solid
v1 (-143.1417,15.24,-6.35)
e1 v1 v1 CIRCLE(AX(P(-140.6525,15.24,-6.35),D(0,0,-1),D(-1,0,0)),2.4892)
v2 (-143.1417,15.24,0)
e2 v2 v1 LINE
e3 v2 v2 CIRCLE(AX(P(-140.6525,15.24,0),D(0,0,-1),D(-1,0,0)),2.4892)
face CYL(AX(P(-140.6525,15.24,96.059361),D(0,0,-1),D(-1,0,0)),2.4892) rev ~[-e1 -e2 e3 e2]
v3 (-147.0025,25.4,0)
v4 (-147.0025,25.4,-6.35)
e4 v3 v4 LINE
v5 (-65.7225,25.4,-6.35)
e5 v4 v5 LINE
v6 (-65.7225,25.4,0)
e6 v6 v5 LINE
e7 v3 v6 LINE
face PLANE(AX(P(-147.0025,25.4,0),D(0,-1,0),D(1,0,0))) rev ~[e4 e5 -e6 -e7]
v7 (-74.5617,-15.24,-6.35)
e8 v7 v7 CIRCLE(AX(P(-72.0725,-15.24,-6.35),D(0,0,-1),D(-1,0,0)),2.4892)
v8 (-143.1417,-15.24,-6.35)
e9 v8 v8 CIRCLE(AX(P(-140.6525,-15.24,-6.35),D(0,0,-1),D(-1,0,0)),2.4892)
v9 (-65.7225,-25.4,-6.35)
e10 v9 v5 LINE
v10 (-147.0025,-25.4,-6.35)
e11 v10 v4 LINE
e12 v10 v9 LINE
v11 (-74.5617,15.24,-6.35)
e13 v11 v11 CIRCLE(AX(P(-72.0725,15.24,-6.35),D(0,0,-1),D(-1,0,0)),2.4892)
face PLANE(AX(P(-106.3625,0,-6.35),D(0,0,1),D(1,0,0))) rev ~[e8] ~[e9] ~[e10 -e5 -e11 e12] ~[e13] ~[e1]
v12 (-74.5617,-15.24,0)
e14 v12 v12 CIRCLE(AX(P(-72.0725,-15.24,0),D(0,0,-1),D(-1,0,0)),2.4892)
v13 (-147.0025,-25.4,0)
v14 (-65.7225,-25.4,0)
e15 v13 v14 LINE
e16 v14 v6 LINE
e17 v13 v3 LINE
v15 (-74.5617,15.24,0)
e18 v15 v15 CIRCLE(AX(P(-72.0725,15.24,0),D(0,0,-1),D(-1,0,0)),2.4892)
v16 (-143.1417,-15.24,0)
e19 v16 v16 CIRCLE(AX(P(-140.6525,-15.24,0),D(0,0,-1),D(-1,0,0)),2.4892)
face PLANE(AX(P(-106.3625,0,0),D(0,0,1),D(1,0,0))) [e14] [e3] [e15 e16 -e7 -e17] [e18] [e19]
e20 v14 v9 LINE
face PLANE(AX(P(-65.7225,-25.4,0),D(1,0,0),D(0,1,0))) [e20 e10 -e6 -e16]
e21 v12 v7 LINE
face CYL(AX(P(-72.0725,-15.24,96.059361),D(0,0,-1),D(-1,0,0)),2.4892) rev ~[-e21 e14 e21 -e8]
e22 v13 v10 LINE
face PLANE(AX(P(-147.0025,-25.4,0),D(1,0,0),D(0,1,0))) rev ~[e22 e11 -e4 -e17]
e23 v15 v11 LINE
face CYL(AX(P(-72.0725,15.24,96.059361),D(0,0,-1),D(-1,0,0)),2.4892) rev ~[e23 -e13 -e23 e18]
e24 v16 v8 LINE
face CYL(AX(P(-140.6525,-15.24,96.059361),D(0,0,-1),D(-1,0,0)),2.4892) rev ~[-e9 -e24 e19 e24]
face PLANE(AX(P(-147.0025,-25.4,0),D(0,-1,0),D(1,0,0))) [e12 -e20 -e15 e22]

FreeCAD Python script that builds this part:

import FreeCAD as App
import Part
import Sketcher
Q = App.Units.Quantity


def add_polygon(sketch, points):
    """Adds a closed chain of lines whose ends are joined by coincident constraints."""
    first, n = sketch.GeometryCount, len(points)
    for a, b in zip(points, points[1:] + points[:1]):
        sketch.addGeometry(Part.LineSegment(App.Vector(*a, 0), App.Vector(*b, 0)), False)
    for i in range(n):
        sketch.addConstraint(Sketcher.Constraint("Coincident", first + i, 2, first + (i + 1) % n, 1))

doc = App.newDocument("Part")
body = doc.addObject("PartDesign::Body", "Body")

sketch1 = doc.addObject("Sketcher::SketchObject", "Sketch")
body.addObject(sketch1)
sketch1.AttachmentSupport = (doc.XY_Plane, [""])
sketch1.MapMode = "FlatFace"
add_polygon(sketch1, [(-147, 25), (-147, -25), (-66, -25), (-66, 25)])
sketch1.addConstraint(Sketcher.Constraint("Vertical", 0))
sketch1.addConstraint(Sketcher.Constraint("Horizontal", 1))
sketch1.addConstraint(Sketcher.Constraint("Vertical", 2))
sketch1.addConstraint(Sketcher.Constraint("Horizontal", 3))
sketch1.addConstraint(Sketcher.Constraint("DistanceY", 0, 2, 0, 1, Q("2 in")))
sketch1.addConstraint(Sketcher.Constraint("DistanceX", 1, 1, 1, 2, Q("3.2 in")))
sketch1.addConstraint(Sketcher.Constraint("DistanceY", 0, 2, -1, 1, Q("1 in")))
sketch1.addConstraint(Sketcher.Constraint("DistanceX", 0, 2, -1, 1, Q("5.7875 in")))
pad1 = doc.addObject("PartDesign::Pad", "Pad")
body.addObject(pad1)
pad1.Profile = sketch1
pad1.Length = Q("0.25 in")
pad1.Reversed = True

sketch2 = doc.addObject("Sketcher::SketchObject", "Sketch001")
body.addObject(sketch2)
sketch2.AttachmentSupport = (doc.XY_Plane, [""])
sketch2.MapMode = "FlatFace"
sketch2.addGeometry(Part.Circle(App.Vector(-140.7, 15.2, 0), App.Vector(0, 0, 1), 2.5), False)
sketch2.addGeometry(Part.Circle(App.Vector(-140.7, -15.2, 0), App.Vector(0, 0, 1), 2.5), False)
sketch2.addGeometry(Part.Circle(App.Vector(-72.1, 15.2, 0), App.Vector(0, 0, 1), 2.5), False)
sketch2.addGeometry(Part.Circle(App.Vector(-72.1, -15.2, 0), App.Vector(0, 0, 1), 2.5), False)
sketch2.addConstraint(Sketcher.Constraint("Equal", 0, 1))
sketch2.addConstraint(Sketcher.Constraint("Equal", 1, 2))
sketch2.addConstraint(Sketcher.Constraint("Equal", 2, 3))
sketch2.addConstraint(Sketcher.Constraint("Symmetric", 0, 3, 1, 3, -1))
sketch2.addConstraint(Sketcher.Constraint("Symmetric", 2, 3, 3, 3, -1))
sketch2.addConstraint(Sketcher.Constraint("Horizontal", 0, 3, 2, 3))
sketch2.addConstraint(Sketcher.Constraint("Diameter", 0, Q("0.196 in")))
sketch2.addConstraint(Sketcher.Constraint("DistanceY", -1, 1, 0, 3, Q("0.6 in")))
sketch2.addConstraint(Sketcher.Constraint("DistanceX", 0, 3, 2, 3, Q("2.7 in")))
sketch2.addConstraint(Sketcher.Constraint("DistanceX", 0, 3, -1, 1, Q("5.5375 in")))
doc.recompute()
hole = doc.addObject("PartDesign::Hole", "Hole")
body.addObject(hole)
hole.Profile = sketch2
hole.ThreadType = "None"
hole.Diameter = Q("0.196 in")
hole.DepthType = "ThroughAll"

doc.recompute()
